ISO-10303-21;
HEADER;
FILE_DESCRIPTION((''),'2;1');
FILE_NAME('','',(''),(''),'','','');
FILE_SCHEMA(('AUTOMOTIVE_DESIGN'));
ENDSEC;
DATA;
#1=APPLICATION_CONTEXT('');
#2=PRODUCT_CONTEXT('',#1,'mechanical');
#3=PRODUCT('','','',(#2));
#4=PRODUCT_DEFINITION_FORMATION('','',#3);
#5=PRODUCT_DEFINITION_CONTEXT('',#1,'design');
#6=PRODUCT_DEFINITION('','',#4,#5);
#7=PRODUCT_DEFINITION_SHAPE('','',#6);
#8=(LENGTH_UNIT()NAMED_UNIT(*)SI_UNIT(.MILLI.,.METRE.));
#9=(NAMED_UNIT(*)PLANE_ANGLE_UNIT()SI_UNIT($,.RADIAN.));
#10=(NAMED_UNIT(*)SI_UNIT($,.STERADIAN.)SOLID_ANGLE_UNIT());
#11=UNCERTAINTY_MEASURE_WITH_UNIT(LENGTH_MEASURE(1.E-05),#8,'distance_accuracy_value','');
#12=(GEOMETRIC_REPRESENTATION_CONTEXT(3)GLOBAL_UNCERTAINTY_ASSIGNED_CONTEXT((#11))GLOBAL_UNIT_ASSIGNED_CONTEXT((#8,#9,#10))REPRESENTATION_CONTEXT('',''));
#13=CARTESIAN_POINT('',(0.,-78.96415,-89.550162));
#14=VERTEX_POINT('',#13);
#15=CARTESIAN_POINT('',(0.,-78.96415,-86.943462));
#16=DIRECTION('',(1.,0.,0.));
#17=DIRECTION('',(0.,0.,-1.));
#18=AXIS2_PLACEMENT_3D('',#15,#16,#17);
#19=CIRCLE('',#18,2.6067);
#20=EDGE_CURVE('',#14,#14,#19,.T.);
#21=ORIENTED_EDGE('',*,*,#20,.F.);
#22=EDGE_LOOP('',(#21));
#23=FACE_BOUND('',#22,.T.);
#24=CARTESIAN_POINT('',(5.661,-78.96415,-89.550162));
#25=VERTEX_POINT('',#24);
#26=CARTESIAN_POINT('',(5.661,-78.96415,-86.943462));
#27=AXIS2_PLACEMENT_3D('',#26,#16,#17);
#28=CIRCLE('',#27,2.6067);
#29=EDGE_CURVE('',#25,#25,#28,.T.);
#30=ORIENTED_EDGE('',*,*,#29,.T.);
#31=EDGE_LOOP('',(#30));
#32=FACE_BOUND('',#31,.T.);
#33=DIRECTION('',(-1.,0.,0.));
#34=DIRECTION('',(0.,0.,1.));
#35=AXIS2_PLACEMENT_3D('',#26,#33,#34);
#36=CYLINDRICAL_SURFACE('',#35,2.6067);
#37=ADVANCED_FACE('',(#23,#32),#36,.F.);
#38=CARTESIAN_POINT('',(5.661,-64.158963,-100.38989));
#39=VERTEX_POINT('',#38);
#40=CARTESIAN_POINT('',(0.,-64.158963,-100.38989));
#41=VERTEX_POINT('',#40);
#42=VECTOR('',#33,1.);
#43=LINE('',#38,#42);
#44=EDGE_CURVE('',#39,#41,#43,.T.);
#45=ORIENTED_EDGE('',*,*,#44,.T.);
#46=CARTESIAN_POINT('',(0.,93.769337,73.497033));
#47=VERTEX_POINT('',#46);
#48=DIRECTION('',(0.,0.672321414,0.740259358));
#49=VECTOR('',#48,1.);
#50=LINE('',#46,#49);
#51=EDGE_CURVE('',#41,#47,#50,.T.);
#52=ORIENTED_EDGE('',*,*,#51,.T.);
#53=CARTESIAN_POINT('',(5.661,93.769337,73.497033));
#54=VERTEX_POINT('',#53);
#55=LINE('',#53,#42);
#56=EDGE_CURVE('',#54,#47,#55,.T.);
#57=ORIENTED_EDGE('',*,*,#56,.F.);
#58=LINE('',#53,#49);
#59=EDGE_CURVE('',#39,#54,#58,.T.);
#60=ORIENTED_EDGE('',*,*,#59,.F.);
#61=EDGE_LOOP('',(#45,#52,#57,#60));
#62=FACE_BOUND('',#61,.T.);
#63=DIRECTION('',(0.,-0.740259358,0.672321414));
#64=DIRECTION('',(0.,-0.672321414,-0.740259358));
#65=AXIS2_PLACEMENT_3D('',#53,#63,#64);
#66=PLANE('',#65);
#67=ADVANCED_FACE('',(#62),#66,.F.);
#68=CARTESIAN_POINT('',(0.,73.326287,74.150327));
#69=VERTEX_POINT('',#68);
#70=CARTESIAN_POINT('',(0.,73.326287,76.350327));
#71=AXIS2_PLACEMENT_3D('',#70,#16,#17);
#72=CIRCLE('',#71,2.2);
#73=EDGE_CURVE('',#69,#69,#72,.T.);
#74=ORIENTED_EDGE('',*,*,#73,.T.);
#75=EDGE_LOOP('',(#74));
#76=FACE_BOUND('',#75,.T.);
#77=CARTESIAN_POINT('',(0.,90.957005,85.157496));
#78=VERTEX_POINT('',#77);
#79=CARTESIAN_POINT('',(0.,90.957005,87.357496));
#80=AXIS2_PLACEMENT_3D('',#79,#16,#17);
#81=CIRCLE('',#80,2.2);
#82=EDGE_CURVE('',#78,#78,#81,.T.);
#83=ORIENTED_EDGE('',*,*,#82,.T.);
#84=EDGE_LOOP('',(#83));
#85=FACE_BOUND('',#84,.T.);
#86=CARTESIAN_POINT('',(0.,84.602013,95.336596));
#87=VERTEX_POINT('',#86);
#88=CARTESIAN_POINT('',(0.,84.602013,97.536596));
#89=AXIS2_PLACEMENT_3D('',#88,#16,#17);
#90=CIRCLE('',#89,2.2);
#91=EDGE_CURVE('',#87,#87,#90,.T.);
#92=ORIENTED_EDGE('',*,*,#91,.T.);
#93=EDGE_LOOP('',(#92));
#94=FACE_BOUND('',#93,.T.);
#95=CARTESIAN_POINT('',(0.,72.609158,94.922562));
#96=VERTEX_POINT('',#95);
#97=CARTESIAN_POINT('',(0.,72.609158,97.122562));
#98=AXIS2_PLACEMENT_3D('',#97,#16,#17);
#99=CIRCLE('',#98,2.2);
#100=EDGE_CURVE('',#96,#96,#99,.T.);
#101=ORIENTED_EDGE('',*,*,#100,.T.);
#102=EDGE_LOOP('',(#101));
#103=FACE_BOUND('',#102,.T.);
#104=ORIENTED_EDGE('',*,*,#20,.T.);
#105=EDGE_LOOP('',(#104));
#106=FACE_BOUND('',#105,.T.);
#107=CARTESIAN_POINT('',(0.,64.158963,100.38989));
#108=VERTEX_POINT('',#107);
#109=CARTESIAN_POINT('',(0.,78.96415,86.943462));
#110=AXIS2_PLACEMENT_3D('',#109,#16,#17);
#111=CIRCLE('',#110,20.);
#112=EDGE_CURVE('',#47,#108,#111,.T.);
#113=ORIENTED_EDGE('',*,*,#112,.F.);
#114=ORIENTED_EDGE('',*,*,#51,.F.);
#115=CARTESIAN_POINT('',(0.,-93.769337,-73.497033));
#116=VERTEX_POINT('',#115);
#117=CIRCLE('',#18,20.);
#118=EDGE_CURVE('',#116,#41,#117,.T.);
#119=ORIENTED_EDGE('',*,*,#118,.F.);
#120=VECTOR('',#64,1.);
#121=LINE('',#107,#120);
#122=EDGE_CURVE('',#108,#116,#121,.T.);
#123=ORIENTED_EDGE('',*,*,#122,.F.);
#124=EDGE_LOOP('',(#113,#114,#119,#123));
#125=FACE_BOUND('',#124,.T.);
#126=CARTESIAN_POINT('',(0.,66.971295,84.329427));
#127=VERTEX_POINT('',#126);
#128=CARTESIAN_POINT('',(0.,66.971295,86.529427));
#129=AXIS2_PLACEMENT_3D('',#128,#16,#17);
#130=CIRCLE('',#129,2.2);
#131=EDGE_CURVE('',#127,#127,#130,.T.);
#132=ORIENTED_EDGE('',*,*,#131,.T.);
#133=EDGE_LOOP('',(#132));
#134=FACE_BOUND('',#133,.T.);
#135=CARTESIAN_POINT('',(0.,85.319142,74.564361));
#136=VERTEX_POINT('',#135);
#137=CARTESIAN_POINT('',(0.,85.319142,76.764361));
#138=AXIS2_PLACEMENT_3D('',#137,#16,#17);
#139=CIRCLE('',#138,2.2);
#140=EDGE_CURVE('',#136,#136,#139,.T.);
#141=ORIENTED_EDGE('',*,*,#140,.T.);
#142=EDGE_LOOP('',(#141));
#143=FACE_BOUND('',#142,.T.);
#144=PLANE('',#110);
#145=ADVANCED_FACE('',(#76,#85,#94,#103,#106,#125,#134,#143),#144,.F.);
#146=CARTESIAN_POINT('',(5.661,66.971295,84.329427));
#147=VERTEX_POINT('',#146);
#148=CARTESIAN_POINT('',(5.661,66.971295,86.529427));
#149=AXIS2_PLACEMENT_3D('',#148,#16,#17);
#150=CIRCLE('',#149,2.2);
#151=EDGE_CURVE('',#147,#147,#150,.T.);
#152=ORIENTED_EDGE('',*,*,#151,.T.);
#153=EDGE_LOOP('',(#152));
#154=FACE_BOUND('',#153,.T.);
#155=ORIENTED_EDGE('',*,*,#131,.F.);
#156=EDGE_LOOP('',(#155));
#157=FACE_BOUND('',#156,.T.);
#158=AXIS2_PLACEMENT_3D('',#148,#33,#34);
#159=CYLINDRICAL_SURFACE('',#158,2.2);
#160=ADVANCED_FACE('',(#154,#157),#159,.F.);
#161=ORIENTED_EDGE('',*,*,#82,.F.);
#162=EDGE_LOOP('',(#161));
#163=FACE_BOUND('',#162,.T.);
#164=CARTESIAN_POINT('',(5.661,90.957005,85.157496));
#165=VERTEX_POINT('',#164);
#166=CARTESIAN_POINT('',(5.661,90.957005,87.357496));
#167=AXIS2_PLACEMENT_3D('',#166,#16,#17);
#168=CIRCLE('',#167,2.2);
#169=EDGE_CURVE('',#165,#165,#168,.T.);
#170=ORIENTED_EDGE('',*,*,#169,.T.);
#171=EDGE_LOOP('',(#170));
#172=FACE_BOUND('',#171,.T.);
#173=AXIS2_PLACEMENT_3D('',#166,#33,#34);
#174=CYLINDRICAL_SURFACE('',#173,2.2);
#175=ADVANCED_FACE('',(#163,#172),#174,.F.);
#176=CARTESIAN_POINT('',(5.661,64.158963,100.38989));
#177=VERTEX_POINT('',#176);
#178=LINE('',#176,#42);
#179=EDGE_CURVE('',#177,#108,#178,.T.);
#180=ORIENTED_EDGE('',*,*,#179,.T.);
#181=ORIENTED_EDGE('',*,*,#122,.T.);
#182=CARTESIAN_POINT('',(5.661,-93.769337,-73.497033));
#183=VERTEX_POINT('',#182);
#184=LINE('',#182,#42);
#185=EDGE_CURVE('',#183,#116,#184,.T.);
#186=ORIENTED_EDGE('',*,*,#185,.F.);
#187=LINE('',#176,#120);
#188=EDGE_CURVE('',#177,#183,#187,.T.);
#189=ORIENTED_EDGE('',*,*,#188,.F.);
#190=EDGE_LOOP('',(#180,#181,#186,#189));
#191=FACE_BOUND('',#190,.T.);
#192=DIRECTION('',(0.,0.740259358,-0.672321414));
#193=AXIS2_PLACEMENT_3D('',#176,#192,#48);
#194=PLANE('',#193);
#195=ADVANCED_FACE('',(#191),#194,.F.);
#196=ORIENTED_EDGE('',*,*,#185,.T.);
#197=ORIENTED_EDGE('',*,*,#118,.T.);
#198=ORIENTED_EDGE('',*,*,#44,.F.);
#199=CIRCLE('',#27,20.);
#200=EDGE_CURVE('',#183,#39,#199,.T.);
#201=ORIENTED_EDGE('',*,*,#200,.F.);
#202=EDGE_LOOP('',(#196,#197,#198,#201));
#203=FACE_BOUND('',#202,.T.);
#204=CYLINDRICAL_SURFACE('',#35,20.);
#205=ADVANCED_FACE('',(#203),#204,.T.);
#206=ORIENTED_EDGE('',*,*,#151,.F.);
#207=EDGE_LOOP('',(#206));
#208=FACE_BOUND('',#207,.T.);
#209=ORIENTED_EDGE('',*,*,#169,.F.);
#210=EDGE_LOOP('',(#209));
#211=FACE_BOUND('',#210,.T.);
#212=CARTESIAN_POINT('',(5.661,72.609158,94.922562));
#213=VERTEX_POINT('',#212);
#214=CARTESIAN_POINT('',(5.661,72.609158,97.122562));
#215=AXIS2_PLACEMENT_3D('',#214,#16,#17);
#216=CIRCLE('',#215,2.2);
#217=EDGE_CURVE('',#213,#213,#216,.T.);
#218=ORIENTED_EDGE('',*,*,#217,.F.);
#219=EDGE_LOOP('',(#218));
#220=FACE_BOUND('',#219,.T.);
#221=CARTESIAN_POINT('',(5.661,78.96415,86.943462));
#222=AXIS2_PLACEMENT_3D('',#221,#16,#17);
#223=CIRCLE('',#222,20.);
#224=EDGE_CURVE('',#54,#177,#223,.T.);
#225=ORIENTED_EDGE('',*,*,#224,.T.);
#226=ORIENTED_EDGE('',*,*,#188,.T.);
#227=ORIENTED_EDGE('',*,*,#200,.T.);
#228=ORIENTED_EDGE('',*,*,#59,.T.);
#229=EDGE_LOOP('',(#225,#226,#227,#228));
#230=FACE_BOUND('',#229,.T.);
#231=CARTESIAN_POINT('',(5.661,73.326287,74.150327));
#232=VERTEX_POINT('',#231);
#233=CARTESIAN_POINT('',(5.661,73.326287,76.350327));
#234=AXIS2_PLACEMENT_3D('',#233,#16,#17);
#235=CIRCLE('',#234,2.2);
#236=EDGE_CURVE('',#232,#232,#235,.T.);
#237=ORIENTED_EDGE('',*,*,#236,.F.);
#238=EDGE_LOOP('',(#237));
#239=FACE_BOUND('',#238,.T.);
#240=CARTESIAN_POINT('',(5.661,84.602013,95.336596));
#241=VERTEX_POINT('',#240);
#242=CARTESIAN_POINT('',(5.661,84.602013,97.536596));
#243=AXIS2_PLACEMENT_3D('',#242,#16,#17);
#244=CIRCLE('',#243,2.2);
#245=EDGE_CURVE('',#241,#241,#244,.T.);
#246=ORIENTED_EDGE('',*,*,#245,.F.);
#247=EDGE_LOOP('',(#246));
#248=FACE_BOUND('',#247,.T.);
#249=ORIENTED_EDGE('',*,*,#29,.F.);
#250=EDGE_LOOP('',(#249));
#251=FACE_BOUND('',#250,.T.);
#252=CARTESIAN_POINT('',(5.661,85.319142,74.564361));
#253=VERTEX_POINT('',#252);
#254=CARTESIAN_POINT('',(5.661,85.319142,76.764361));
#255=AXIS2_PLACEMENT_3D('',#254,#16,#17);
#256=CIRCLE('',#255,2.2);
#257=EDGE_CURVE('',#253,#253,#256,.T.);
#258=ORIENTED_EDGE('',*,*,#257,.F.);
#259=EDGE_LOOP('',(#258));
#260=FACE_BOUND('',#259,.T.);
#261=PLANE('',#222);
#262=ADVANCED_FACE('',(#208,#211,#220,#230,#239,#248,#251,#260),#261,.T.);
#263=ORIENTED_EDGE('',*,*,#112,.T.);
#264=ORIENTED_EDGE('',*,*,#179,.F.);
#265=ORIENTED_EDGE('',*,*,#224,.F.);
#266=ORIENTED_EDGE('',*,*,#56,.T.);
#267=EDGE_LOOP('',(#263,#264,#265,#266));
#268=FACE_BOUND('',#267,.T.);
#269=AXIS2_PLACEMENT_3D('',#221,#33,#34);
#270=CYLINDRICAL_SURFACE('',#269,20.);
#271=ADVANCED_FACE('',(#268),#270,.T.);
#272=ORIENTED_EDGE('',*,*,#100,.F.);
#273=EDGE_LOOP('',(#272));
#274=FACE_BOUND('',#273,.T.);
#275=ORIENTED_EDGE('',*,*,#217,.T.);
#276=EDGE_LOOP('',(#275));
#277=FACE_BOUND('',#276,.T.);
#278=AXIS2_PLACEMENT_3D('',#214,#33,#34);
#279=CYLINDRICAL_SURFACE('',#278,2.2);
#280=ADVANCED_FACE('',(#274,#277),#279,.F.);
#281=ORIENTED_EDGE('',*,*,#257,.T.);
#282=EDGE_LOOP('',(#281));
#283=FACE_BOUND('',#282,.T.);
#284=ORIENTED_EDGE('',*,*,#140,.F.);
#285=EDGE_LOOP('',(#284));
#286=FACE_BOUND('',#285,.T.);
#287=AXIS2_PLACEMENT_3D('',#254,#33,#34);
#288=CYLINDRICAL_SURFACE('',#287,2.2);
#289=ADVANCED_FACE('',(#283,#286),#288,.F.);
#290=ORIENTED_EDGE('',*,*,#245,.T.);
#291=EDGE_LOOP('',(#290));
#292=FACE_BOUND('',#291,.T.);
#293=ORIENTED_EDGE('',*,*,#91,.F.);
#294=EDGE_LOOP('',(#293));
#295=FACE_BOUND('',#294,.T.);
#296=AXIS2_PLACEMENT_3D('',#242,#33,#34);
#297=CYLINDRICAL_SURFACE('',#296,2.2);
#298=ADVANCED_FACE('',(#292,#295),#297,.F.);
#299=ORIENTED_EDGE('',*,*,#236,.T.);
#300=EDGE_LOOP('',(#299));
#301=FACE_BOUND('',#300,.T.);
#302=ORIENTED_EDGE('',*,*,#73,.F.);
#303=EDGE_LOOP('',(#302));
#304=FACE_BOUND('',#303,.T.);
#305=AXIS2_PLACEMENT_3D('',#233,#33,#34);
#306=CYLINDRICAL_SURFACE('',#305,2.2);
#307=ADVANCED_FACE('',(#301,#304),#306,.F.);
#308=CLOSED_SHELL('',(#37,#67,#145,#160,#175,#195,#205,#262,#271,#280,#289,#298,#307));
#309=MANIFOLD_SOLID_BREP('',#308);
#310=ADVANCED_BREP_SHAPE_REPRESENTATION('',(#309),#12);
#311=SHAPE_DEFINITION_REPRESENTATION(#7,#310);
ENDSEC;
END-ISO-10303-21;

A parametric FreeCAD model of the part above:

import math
import FreeCAD as App
import Part
import Sketcher

V = App.Vector
Q = App.Units.Quantity

doc = App.newDocument("Part")
body = doc.addObject("PartDesign::Body", "Body")

# Sketch on YZ plane
sketch1 = body.newObject("Sketcher::SketchObject", "Sketch")
sketch1.AttachmentSupport = (doc.getObject("YZ_Plane"), [""])
sketch1.MapMode = "FlatFace"
sketch1.addGeometry(Part.LineSegment(V(-64.2, -100.4, 0), V(93.8, 73.5, 0)), False)
sketch1.addGeometry(Part.ArcOfCircle(Part.Circle(V(79, 86.9, 0), V(0, 0, 1), 20), math.radians(-42), math.radians(138)), False)
sketch1.addGeometry(Part.LineSegment(V(64.2, 100.4, 0), V(-93.8, -73.5, 0)), False)
sketch1.addGeometry(Part.ArcOfCircle(Part.Circle(V(-79, -86.9, 0), V(0, 0, 1), 20), math.radians(138), math.radians(318)), False)
sketch1.addGeometry(Part.Circle(V(-79, -86.9, 0), V(0, 0, 1), 2.6), False)
sketch1.addGeometry(Part.Circle(V(67, 86.5, 0), V(0, 0, 1), 2.2), False)
sketch1.addGeometry(Part.Circle(V(73.3, 76.4, 0), V(0, 0, 1), 2.2), False)
sketch1.addGeometry(Part.Circle(V(72.6, 97.1, 0), V(0, 0, 1), 2.2), False)
sketch1.addGeometry(Part.Circle(V(85.3, 76.8, 0), V(0, 0, 1), 2.2), False)
sketch1.addGeometry(Part.Circle(V(91, 87.4, 0), V(0, 0, 1), 2.2), False)
sketch1.addGeometry(Part.Circle(V(84.6, 97.5, 0), V(0, 0, 1), 2.2), False)
sketch1.addConstraint(Sketcher.Constraint("Tangent", 0, 2, 1, 1))
sketch1.addConstraint(Sketcher.Constraint("Tangent", 1, 2, 2, 1))
sketch1.addConstraint(Sketcher.Constraint("Tangent", 2, 2, 3, 1))
sketch1.addConstraint(Sketcher.Constraint("Tangent", 3, 2, 0, 1))
sketch1.addConstraint(Sketcher.Constraint("Coincident", 4, 3, 3, 3))
sketch1.addConstraint(Sketcher.Constraint("Equal", 1, 3))
sketch1.addConstraint(Sketcher.Constraint("Equal", 5, 6))
sketch1.addConstraint(Sketcher.Constraint("Equal", 6, 7))
sketch1.addConstraint(Sketcher.Constraint("Equal", 7, 8))
sketch1.addConstraint(Sketcher.Constraint("Equal", 8, 9))
sketch1.addConstraint(Sketcher.Constraint("Equal", 9, 10))
sketch1.addConstraint(Sketcher.Constraint("Symmetric", 1, 3, 3, 3, -1, 1))
sketch1.addConstraint(Sketcher.Constraint("Radius", 1, Q("20 mm")))
sketch1.addConstraint(Sketcher.Constraint("Diameter", 5, Q("4.4 mm")))
sketch1.addConstraint(Sketcher.Constraint("Distance", 0, Q("234.9 mm")))
sketch1.addConstraint(Sketcher.Constraint("Diameter", 4, Q("5.2134 mm")))
sketch1.addConstraint(Sketcher.Constraint("DistanceX", 3, 3, 1, 3, Q("157.9283 mm")))
sketch1.addConstraint(Sketcher.Constraint("DistanceY", 6, 3, 5, 3, Q("10.1791 mm")))
sketch1.addConstraint(Sketcher.Constraint("DistanceY", 1, 3, 7, 3, Q("10.1791 mm")))
sketch1.addConstraint(Sketcher.Constraint("DistanceY", 8, 3, 1, 3, Q("10.1791 mm")))
sketch1.addConstraint(Sketcher.Constraint("DistanceY", 9, 3, 10, 3, Q("10.1791 mm")))
sketch1.addConstraint(Sketcher.Constraint("DistanceX", -1, 1, 7, 3, Q("72.609158 mm")))
sketch1.addConstraint(Sketcher.Constraint("DistanceX", -1, 1, 8, 3, Q("85.319142 mm")))
sketch1.addConstraint(Sketcher.Constraint("DistanceY", 3, 3, 5, 3, Q("173.472889 mm")))
sketch1.addConstraint(Sketcher.Constraint("DistanceX", 5, 3, 6, 3, Q("6.354992 mm")))
sketch1.addConstraint(Sketcher.Constraint("DistanceX", 7, 3, 6, 3, Q("0.717129 mm")))
sketch1.addConstraint(Sketcher.Constraint("DistanceX", 6, 3, 9, 3, Q("17.630719 mm")))
sketch1.addConstraint(Sketcher.Constraint("DistanceY", 6, 3, 9, 3, Q("11.007169 mm")))
sketch1.addConstraint(Sketcher.Constraint("DistanceX", 10, 3, 9, 3, Q("6.354992 mm")))
pad1 = body.newObject("PartDesign::Pad", "Pad")
pad1.Profile = sketch1
pad1.Length = 5.661

doc.recompute()
